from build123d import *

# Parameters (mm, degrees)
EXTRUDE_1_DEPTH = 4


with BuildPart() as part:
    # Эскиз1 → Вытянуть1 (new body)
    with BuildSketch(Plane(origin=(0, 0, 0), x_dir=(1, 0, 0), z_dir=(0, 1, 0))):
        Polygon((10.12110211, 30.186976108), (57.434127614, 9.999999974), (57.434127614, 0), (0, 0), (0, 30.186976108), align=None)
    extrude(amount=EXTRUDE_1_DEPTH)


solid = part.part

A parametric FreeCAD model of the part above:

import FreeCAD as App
import Part
import Sketcher
from FreeCAD import Vector

doc = App.newDocument("Part")
body = doc.addObject("PartDesign::Body", "Body")

# Sketch on XZ plane
sketch1 = body.newObject("Sketcher::SketchObject", "Sketch")
sketch1.AttachmentSupport = (doc.getObject("XZ_Plane"), [""])
sketch1.MapMode = "FlatFace"
sketch1.addGeometry(Part.LineSegment(Vector(57, -10, 0), Vector(10, -30, 0)), False)
sketch1.addGeometry(Part.LineSegment(Vector(10, -30, 0), Vector(0, -30, 0)), False)
sketch1.addGeometry(Part.LineSegment(Vector(0, -30, 0), Vector(0, 0, 0)), False)
sketch1.addGeometry(Part.LineSegment(Vector(0, 0, 0), Vector(57, 0, 0)), False)
sketch1.addGeometry(Part.LineSegment(Vector(57, 0, 0), Vector(57, -10, 0)), False)
sketch1.addConstraint(Sketcher.Constraint("Coincident", 0, 2, 1, 1))
sketch1.addConstraint(Sketcher.Constraint("Coincident", 1, 2, 2, 1))
sketch1.addConstraint(Sketcher.Constraint("Coincident", 2, 2, 3, 1))
sketch1.addConstraint(Sketcher.Constraint("Coincident", 3, 2, 4, 1))
sketch1.addConstraint(Sketcher.Constraint("Coincident", 4, 2, 0, 1))
sketch1.addConstraint(Sketcher.Constraint("Horizontal", 1))
sketch1.addConstraint(Sketcher.Constraint("Vertical", 2))
sketch1.addConstraint(Sketcher.Constraint("Horizontal", 3))
sketch1.addConstraint(Sketcher.Constraint("Vertical", 4))
sketch1.addConstraint(Sketcher.Constraint("Coincident", 2, 2, -1, 1))
sketch1.addConstraint(Sketcher.Constraint("DistanceY", 4, 2, 4, 1, 10.0))
sketch1.addConstraint(Sketcher.Constraint("Distance", 0, 51.439638))
sketch1.addConstraint(Sketcher.Constraint("DistanceX", 1, 2, 1, 1, 10.121102))
sketch1.addConstraint(Sketcher.Constraint("DistanceX", 3, 1, 3, 2, 57.434128))
pad1 = body.newObject("PartDesign::Pad", "Pad")
pad1.Profile = sketch1
pad1.Length = 4
pad1.Reversed = True

doc.recompute()
